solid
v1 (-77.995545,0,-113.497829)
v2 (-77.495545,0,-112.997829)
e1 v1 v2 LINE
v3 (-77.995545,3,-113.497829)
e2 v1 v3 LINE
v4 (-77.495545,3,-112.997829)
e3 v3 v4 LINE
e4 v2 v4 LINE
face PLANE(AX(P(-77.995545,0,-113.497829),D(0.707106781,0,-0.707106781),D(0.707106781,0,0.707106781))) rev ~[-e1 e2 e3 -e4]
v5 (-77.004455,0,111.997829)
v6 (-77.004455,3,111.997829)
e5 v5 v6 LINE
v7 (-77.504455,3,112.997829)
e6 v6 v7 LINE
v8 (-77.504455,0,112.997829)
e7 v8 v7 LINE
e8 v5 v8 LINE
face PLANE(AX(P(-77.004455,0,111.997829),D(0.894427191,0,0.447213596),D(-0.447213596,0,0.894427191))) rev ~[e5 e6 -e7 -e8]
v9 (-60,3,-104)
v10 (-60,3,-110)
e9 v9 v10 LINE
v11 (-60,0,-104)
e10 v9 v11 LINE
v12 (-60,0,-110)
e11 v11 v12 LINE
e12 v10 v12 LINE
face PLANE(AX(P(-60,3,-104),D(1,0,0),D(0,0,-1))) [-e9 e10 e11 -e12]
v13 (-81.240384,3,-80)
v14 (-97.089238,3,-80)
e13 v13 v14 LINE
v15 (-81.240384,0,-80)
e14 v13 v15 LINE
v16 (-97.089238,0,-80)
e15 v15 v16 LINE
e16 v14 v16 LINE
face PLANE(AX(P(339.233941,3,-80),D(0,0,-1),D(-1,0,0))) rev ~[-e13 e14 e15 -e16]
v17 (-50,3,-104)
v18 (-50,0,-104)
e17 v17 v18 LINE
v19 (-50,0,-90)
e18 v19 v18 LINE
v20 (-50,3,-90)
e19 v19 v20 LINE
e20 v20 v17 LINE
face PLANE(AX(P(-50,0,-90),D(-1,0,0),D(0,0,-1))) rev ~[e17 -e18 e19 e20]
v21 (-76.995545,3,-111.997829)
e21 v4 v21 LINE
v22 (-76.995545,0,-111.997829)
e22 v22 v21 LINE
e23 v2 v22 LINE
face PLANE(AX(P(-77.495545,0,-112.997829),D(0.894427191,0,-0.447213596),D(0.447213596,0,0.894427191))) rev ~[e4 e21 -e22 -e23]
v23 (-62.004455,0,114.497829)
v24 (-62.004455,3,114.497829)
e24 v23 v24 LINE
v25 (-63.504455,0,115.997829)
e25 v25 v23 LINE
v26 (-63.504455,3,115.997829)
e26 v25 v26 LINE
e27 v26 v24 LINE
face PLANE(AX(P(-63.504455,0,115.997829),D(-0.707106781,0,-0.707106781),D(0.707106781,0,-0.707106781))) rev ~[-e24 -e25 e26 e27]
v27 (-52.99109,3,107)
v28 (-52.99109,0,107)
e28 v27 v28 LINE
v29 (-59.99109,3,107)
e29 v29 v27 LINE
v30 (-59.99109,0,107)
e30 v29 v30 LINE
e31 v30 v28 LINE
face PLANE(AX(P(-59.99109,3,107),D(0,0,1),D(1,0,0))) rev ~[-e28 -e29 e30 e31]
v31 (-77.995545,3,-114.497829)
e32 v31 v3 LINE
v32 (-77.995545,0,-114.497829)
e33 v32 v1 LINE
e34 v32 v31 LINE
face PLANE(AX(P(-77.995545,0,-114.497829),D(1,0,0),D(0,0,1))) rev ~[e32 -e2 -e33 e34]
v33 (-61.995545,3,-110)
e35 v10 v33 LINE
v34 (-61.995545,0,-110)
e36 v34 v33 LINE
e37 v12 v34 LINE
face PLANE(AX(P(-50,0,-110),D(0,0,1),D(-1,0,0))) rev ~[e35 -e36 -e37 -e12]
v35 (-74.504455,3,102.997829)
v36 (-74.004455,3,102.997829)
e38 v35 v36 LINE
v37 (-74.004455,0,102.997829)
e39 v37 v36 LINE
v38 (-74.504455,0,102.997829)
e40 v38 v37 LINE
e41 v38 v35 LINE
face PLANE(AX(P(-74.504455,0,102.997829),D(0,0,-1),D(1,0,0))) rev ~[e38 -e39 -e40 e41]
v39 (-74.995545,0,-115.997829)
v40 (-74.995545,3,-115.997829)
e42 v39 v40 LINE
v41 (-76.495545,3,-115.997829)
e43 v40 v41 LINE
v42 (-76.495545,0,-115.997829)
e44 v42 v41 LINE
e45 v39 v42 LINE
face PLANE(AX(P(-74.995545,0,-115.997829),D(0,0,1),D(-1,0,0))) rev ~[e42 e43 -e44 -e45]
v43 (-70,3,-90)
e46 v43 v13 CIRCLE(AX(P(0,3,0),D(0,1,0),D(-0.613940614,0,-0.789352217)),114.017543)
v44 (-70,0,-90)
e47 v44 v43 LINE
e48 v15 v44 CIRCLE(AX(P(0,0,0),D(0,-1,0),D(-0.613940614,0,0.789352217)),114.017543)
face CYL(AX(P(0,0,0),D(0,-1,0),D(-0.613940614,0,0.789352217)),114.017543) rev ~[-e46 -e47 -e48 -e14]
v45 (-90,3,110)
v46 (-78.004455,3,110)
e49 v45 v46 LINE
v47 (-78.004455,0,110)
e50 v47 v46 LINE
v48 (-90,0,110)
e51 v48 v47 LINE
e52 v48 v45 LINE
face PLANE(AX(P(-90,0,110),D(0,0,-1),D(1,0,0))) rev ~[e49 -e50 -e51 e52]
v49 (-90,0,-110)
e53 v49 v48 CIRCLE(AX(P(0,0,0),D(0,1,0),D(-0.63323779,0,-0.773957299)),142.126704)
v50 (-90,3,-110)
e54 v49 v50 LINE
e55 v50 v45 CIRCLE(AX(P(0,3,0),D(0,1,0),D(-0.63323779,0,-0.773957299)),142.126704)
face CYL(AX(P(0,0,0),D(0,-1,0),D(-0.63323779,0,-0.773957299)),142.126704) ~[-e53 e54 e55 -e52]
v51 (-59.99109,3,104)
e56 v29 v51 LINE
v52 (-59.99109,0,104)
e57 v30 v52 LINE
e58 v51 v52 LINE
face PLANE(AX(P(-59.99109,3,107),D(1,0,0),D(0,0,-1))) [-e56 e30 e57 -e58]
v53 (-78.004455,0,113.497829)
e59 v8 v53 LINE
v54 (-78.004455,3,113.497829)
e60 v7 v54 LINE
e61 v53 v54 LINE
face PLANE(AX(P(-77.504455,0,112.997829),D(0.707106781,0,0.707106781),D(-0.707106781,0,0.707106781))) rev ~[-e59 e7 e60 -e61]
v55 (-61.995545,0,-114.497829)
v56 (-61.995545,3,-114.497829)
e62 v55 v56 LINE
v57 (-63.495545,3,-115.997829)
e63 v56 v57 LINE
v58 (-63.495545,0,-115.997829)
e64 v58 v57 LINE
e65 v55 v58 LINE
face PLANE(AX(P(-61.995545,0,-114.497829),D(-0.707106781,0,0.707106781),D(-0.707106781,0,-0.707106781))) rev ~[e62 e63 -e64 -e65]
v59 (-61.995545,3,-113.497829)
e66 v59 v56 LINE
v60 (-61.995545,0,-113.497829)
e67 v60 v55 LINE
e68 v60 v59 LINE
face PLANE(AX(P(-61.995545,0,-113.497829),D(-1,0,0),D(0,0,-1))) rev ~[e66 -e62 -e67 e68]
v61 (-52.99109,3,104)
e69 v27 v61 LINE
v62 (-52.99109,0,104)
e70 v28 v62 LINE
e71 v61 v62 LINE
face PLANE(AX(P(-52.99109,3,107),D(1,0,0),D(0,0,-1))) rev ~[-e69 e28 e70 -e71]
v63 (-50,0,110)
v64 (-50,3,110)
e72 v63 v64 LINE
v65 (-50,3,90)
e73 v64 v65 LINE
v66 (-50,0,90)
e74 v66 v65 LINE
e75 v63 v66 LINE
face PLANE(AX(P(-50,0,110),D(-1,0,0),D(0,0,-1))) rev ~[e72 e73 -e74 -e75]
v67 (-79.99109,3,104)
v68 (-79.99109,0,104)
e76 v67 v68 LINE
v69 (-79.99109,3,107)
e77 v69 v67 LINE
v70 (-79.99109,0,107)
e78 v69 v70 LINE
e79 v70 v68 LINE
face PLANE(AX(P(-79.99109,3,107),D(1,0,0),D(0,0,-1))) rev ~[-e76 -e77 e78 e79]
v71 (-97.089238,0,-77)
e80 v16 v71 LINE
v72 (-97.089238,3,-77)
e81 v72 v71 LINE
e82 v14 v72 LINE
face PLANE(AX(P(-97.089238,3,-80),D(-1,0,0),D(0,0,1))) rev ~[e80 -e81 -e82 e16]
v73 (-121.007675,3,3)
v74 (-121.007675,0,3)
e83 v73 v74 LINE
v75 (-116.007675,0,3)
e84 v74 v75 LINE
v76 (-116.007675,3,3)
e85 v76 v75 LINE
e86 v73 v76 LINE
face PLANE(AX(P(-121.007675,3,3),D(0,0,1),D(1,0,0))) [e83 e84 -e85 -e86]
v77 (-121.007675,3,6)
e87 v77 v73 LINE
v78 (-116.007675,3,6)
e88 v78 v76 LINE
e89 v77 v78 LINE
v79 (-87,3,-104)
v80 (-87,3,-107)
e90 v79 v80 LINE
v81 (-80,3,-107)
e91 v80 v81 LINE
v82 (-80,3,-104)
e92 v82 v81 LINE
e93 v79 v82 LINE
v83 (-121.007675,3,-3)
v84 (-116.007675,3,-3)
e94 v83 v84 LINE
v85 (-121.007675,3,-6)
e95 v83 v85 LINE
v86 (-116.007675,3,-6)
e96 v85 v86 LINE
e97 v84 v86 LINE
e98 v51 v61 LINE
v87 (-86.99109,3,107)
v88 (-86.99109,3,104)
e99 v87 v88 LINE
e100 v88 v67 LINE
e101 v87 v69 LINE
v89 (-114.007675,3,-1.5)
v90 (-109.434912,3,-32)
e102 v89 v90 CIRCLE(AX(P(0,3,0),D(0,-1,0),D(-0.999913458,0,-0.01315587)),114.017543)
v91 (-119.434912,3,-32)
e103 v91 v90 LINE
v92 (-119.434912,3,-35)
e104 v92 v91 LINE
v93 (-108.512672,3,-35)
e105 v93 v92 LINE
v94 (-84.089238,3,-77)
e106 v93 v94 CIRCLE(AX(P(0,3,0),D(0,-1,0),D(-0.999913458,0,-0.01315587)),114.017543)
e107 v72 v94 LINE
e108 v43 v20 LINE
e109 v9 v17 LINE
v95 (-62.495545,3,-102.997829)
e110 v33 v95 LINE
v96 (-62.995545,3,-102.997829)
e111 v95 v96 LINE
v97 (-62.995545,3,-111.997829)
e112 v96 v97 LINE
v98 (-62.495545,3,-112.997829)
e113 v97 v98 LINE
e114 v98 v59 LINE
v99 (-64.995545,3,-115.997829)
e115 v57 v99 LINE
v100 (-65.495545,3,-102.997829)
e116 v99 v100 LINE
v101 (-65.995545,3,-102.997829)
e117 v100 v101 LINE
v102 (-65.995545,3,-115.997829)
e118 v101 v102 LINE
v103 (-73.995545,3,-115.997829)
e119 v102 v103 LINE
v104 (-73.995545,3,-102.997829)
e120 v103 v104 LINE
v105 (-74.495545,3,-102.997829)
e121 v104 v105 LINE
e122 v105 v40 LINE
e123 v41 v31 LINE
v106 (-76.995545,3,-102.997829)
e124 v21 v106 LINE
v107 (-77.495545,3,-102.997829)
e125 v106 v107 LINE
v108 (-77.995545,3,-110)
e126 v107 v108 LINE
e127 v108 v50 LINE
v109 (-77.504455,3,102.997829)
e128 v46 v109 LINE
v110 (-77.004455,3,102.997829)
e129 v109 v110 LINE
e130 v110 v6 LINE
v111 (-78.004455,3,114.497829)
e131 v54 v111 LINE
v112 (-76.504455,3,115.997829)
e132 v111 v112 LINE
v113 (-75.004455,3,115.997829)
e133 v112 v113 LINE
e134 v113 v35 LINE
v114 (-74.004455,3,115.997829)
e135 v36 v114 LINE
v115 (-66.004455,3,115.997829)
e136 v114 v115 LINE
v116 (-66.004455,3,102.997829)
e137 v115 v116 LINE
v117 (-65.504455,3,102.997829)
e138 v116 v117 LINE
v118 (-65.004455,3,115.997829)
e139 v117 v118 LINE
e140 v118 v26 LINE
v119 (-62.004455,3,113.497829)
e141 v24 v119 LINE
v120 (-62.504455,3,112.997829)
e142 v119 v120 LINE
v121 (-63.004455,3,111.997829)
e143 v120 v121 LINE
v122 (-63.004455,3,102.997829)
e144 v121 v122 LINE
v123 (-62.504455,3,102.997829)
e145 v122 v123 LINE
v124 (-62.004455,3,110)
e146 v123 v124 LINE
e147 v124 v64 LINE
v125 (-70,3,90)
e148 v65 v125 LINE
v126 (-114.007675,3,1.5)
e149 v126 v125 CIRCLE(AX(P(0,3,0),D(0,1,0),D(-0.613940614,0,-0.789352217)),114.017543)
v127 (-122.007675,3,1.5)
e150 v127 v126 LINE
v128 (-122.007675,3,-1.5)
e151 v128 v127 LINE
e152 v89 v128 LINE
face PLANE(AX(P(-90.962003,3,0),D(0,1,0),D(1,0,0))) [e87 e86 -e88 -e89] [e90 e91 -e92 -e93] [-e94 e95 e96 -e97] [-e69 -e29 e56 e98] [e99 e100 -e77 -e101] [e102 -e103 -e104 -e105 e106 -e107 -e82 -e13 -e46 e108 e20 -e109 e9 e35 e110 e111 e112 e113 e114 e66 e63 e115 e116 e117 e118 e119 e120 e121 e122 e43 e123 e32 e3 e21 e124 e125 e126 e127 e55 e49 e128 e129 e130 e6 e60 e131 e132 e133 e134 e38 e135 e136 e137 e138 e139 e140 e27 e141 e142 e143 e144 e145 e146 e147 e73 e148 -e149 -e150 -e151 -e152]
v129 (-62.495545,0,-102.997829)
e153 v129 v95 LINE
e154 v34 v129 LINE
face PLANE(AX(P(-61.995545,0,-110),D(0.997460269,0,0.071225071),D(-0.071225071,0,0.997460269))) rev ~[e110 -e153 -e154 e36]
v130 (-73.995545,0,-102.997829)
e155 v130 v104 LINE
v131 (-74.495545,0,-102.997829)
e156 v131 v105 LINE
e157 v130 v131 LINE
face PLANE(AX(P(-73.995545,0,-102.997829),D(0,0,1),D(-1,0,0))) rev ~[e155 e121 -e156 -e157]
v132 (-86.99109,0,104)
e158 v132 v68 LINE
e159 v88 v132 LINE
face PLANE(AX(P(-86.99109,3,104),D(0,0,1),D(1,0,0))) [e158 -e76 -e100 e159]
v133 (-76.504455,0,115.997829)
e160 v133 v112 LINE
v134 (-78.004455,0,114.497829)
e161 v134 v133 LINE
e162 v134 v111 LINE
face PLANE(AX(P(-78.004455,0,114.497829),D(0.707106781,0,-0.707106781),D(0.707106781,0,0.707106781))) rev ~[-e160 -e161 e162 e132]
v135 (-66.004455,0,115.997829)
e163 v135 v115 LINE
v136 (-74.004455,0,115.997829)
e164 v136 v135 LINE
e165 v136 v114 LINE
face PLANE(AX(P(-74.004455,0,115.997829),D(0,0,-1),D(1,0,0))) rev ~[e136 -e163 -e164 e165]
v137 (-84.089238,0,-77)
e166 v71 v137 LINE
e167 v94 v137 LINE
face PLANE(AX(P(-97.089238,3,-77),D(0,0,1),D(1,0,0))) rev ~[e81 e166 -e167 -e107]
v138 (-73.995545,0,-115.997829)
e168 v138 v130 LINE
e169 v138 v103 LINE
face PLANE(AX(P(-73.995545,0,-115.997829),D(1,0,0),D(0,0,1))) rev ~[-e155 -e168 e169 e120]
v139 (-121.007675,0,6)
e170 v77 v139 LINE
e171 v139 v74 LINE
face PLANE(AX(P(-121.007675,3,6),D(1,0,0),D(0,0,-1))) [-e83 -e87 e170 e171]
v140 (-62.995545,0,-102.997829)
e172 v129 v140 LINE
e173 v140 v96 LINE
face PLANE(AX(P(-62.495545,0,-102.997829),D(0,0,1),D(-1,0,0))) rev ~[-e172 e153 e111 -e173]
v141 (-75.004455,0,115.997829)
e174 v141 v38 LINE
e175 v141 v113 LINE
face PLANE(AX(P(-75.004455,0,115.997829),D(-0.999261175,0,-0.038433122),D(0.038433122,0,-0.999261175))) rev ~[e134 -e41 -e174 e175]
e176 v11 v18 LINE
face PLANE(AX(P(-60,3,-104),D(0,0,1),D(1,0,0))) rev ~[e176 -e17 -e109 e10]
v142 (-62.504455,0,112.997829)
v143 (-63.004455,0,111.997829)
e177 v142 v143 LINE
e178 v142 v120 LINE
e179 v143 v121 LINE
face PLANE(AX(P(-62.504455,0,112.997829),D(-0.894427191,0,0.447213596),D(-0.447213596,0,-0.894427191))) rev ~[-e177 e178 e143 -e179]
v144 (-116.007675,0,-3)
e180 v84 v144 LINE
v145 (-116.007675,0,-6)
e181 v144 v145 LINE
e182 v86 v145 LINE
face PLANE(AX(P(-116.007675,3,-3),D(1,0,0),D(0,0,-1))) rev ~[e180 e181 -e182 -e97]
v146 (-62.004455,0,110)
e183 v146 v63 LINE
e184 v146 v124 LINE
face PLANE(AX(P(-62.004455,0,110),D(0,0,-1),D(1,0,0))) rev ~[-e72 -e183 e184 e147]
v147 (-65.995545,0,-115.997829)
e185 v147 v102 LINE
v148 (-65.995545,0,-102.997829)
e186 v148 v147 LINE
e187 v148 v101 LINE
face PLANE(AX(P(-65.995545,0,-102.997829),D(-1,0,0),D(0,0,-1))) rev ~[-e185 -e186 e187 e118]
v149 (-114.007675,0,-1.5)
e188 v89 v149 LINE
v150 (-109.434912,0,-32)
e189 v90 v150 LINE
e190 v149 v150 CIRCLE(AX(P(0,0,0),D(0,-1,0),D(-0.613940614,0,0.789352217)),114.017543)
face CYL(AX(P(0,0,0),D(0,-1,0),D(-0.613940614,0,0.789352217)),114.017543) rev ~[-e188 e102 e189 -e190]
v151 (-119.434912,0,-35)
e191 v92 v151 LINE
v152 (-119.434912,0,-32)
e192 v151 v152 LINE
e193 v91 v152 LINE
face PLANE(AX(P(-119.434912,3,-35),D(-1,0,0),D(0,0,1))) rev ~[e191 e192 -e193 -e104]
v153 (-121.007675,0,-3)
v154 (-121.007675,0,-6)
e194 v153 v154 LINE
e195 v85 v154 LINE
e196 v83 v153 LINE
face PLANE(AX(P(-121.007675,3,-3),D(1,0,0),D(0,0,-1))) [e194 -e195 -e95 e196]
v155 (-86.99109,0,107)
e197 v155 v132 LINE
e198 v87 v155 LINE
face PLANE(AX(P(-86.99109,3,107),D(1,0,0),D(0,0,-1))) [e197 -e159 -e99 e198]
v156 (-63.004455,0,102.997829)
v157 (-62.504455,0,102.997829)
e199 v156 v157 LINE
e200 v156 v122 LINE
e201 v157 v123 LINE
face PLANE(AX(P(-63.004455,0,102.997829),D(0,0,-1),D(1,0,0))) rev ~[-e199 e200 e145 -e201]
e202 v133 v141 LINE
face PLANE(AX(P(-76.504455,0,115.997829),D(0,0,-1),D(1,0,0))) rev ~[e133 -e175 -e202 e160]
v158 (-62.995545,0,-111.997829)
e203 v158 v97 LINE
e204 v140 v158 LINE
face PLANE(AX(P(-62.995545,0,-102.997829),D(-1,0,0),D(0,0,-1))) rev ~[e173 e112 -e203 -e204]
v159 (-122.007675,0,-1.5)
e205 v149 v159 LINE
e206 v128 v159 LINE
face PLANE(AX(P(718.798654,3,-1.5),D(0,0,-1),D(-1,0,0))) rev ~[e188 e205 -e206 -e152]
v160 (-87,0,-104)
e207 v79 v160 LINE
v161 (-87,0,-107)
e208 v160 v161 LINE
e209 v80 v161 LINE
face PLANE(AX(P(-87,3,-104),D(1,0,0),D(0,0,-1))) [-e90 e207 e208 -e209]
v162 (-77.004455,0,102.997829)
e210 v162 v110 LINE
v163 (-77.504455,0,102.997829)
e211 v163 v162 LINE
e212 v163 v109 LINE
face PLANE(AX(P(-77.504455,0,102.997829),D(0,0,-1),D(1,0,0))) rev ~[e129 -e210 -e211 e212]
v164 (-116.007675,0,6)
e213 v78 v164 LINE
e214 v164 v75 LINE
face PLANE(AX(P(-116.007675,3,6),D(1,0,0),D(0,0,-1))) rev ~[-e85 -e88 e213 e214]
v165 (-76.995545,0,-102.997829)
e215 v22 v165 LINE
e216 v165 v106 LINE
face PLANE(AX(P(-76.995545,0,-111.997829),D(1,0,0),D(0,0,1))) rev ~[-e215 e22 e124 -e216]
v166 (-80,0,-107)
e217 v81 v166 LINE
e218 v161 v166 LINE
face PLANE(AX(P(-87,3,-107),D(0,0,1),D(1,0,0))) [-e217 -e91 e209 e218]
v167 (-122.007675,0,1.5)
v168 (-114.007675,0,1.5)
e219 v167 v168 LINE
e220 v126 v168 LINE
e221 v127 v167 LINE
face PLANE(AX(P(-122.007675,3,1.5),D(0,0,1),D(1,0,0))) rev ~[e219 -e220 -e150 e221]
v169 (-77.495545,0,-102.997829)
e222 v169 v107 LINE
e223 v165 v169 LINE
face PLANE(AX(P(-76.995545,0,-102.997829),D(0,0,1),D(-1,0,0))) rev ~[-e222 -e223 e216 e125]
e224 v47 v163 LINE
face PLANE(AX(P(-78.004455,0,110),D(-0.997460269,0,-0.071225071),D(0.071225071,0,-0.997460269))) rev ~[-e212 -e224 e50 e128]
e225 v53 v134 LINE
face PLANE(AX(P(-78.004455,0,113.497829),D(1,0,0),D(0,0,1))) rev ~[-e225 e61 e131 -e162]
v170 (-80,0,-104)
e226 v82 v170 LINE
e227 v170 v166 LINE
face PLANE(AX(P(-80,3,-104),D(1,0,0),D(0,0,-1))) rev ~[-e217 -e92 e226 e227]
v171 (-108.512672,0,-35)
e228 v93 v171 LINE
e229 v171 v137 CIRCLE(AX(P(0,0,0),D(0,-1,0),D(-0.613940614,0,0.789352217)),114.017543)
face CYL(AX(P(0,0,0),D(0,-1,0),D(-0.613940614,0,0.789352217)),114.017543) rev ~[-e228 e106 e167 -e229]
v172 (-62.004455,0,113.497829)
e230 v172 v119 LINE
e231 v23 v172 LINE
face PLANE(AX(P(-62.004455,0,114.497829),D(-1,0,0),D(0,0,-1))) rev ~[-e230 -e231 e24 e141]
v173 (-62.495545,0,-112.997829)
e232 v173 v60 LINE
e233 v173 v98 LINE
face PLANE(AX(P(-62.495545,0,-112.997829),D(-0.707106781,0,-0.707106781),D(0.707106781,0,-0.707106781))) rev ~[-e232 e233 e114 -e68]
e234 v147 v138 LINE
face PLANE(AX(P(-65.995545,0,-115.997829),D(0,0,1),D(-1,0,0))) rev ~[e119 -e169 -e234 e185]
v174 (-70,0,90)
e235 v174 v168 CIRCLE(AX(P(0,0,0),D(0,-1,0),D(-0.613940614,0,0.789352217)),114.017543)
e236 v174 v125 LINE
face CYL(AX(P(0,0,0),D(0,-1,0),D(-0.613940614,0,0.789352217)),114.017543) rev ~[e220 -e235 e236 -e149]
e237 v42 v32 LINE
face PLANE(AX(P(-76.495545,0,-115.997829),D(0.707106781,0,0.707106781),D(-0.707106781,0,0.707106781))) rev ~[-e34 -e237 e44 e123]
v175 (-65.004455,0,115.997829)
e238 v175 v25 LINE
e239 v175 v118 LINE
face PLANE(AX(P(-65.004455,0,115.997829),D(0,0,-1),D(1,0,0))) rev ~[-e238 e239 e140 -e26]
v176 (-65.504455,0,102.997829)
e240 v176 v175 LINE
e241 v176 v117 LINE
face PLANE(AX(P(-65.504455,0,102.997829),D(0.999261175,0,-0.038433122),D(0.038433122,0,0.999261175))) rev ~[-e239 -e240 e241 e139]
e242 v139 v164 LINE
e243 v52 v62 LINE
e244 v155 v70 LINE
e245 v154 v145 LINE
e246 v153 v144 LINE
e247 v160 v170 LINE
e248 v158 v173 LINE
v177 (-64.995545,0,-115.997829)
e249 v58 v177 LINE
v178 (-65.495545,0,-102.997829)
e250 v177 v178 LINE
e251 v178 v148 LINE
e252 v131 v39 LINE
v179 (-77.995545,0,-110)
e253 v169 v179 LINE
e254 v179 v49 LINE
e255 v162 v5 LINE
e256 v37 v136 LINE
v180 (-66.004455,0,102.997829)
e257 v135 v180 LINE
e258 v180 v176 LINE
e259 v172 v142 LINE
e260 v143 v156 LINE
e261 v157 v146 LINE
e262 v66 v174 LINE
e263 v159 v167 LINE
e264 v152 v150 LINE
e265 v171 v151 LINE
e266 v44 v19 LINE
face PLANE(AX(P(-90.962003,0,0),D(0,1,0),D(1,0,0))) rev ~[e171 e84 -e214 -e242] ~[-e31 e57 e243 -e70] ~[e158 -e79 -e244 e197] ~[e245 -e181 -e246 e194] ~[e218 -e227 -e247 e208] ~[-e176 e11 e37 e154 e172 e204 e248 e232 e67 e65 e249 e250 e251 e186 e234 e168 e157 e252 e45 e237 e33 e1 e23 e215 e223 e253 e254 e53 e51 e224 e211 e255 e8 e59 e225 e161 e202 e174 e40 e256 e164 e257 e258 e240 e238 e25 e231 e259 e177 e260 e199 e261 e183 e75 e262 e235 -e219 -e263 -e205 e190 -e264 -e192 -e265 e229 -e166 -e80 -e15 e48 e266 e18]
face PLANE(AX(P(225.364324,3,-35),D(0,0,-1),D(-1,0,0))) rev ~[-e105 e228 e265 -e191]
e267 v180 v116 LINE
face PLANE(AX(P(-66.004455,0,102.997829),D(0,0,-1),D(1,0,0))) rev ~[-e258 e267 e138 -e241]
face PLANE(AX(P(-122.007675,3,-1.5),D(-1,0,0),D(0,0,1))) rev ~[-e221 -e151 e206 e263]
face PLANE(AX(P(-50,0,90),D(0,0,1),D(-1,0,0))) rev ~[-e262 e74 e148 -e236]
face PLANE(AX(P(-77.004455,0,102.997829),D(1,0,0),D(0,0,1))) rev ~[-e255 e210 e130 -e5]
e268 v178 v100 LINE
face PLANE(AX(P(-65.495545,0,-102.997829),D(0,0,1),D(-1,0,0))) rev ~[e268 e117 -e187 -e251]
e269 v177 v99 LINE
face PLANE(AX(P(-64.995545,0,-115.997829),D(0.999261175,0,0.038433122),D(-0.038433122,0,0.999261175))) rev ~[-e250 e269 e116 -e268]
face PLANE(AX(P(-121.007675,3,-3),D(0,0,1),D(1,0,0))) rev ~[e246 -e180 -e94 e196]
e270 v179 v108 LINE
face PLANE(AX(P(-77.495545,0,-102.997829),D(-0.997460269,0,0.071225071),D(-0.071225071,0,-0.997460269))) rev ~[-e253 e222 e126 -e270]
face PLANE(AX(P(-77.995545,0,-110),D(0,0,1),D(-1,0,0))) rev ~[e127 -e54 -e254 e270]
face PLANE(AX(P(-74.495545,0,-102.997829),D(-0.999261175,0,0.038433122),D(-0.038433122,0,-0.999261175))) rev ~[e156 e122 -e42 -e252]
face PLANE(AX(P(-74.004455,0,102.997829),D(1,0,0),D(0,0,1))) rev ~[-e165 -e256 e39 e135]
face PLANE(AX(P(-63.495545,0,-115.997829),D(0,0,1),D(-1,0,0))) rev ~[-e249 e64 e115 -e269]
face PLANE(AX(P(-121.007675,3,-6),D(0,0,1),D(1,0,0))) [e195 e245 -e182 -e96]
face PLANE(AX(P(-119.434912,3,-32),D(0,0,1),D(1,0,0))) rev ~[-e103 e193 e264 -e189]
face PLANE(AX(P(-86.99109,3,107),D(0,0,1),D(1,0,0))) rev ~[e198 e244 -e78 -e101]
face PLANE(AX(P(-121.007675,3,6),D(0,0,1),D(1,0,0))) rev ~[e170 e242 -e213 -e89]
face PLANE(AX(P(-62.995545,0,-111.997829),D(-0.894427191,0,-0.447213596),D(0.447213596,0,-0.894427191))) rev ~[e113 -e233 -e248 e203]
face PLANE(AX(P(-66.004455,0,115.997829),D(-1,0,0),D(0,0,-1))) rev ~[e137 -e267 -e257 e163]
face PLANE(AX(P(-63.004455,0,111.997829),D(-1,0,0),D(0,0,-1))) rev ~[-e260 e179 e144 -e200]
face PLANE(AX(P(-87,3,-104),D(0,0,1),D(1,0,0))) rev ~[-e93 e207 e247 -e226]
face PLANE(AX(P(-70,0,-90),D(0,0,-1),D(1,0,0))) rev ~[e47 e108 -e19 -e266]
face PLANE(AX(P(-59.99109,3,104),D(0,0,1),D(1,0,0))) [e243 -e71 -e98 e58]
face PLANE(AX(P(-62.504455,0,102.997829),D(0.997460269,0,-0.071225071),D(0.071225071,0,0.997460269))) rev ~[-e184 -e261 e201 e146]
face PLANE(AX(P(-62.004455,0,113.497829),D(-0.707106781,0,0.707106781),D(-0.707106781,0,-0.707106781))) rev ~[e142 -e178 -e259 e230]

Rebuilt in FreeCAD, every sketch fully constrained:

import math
import FreeCAD as App
import Part
import Sketcher
Q = App.Units.Quantity


def add_polygon(sketch, points):
    """Adds a closed chain of lines whose ends are joined by coincident constraints."""
    first, n = sketch.GeometryCount, len(points)
    for a, b in zip(points, points[1:] + points[:1]):
        sketch.addGeometry(Part.LineSegment(App.Vector(*a, 0), App.Vector(*b, 0)), False)
    for i in range(n):
        sketch.addConstraint(Sketcher.Constraint("Coincident", first + i, 2, first + (i + 1) % n, 1))

doc = App.newDocument("Part")
body = doc.addObject("PartDesign::Body", "Body")

# Sketch on XZ plane
sketch1 = body.newObject("Sketcher::SketchObject", "Sketch")
sketch1.AttachmentSupport = (doc.getObject("XZ_Plane"), [""])
sketch1.MapMode = "FlatFace"
sketch1.addGeometry(Part.LineSegment(App.Vector(-70, -90, 0), App.Vector(-50, -90, 0)), False)
sketch1.addGeometry(Part.LineSegment(App.Vector(-50, -90, 0), App.Vector(-50, -110, 0)), False)
sketch1.addGeometry(Part.LineSegment(App.Vector(-50, -110, 0), App.Vector(-62, -110, 0)), False)
sketch1.addGeometry(Part.LineSegment(App.Vector(-62, -110, 0), App.Vector(-62.5, -103, 0)), False)
sketch1.addGeometry(Part.LineSegment(App.Vector(-62.5, -103, 0), App.Vector(-63, -103, 0)), False)
sketch1.addGeometry(Part.LineSegment(App.Vector(-63, -103, 0), App.Vector(-63, -112, 0)), False)
sketch1.addGeometry(Part.LineSegment(App.Vector(-63, -112, 0), App.Vector(-62.5, -113, 0)), False)
sketch1.addGeometry(Part.LineSegment(App.Vector(-62.5, -113, 0), App.Vector(-62, -113.5, 0)), False)
sketch1.addGeometry(Part.LineSegment(App.Vector(-62, -113.5, 0), App.Vector(-62, -114.5, 0)), False)
sketch1.addGeometry(Part.LineSegment(App.Vector(-62, -114.5, 0), App.Vector(-63.5, -116, 0)), False)
sketch1.addGeometry(Part.LineSegment(App.Vector(-63.5, -116, 0), App.Vector(-65, -116, 0)), False)
sketch1.addGeometry(Part.LineSegment(App.Vector(-65, -116, 0), App.Vector(-65.5, -103, 0)), False)
sketch1.addGeometry(Part.LineSegment(App.Vector(-65.5, -103, 0), App.Vector(-66, -103, 0)), False)
sketch1.addGeometry(Part.LineSegment(App.Vector(-66, -103, 0), App.Vector(-66, -116, 0)), False)
sketch1.addGeometry(Part.LineSegment(App.Vector(-66, -116, 0), App.Vector(-74, -116, 0)), False)
sketch1.addGeometry(Part.LineSegment(App.Vector(-74, -116, 0), App.Vector(-74, -103, 0)), False)
sketch1.addGeometry(Part.LineSegment(App.Vector(-74, -103, 0), App.Vector(-74.5, -103, 0)), False)
sketch1.addGeometry(Part.LineSegment(App.Vector(-74.5, -103, 0), App.Vector(-75, -116, 0)), False)
sketch1.addGeometry(Part.LineSegment(App.Vector(-75, -116, 0), App.Vector(-76.5, -116, 0)), False)
sketch1.addGeometry(Part.LineSegment(App.Vector(-76.5, -116, 0), App.Vector(-78, -114.5, 0)), False)
sketch1.addGeometry(Part.LineSegment(App.Vector(-78, -114.5, 0), App.Vector(-78, -113.5, 0)), False)
sketch1.addGeometry(Part.LineSegment(App.Vector(-78, -113.5, 0), App.Vector(-77.5, -113, 0)), False)
sketch1.addGeometry(Part.LineSegment(App.Vector(-77.5, -113, 0), App.Vector(-77, -112, 0)), False)
sketch1.addGeometry(Part.LineSegment(App.Vector(-77, -112, 0), App.Vector(-77, -103, 0)), False)
sketch1.addGeometry(Part.LineSegment(App.Vector(-77, -103, 0), App.Vector(-77.5, -103, 0)), False)
sketch1.addGeometry(Part.LineSegment(App.Vector(-77.5, -103, 0), App.Vector(-78, -110, 0)), False)
sketch1.addGeometry(Part.LineSegment(App.Vector(-78, -110, 0), App.Vector(-90, -110, 0)), False)
sketch1.addGeometry(Part.ArcOfCircle(Part.Circle(App.Vector(0, 0, 0), App.Vector(0, 0, 1), 142.1), math.radians(129), math.radians(231)), False)
sketch1.addGeometry(Part.LineSegment(App.Vector(-90, 110, 0), App.Vector(-78, 110, 0)), False)
sketch1.addGeometry(Part.LineSegment(App.Vector(-78, 110, 0), App.Vector(-77.5, 103, 0)), False)
sketch1.addGeometry(Part.LineSegment(App.Vector(-77.5, 103, 0), App.Vector(-77, 103, 0)), False)
sketch1.addGeometry(Part.LineSegment(App.Vector(-77, 103, 0), App.Vector(-77, 112, 0)), False)
sketch1.addGeometry(Part.LineSegment(App.Vector(-77, 112, 0), App.Vector(-77.5, 113, 0)), False)
sketch1.addGeometry(Part.LineSegment(App.Vector(-77.5, 113, 0), App.Vector(-78, 113.5, 0)), False)
sketch1.addGeometry(Part.LineSegment(App.Vector(-78, 113.5, 0), App.Vector(-78, 114.5, 0)), False)
sketch1.addGeometry(Part.LineSegment(App.Vector(-78, 114.5, 0), App.Vector(-76.5, 116, 0)), False)
sketch1.addGeometry(Part.LineSegment(App.Vector(-76.5, 116, 0), App.Vector(-75, 116, 0)), False)
sketch1.addGeometry(Part.LineSegment(App.Vector(-75, 116, 0), App.Vector(-74.5, 103, 0)), False)
sketch1.addGeometry(Part.LineSegment(App.Vector(-74.5, 103, 0), App.Vector(-74, 103, 0)), False)
sketch1.addGeometry(Part.LineSegment(App.Vector(-74, 103, 0), App.Vector(-74, 116, 0)), False)
sketch1.addGeometry(Part.LineSegment(App.Vector(-74, 116, 0), App.Vector(-66, 116, 0)), False)
sketch1.addGeometry(Part.LineSegment(App.Vector(-66, 116, 0), App.Vector(-66, 103, 0)), False)
sketch1.addGeometry(Part.LineSegment(App.Vector(-66, 103, 0), App.Vector(-65.5, 103, 0)), False)
sketch1.addGeometry(Part.LineSegment(App.Vector(-65.5, 103, 0), App.Vector(-65, 116, 0)), False)
sketch1.addGeometry(Part.LineSegment(App.Vector(-65, 116, 0), App.Vector(-63.5, 116, 0)), False)
sketch1.addGeometry(Part.LineSegment(App.Vector(-63.5, 116, 0), App.Vector(-62, 114.5, 0)), False)
sketch1.addGeometry(Part.LineSegment(App.Vector(-62, 114.5, 0), App.Vector(-62, 113.5, 0)), False)
sketch1.addGeometry(Part.LineSegment(App.Vector(-62, 113.5, 0), App.Vector(-62.5, 113, 0)), False)
sketch1.addGeometry(Part.LineSegment(App.Vector(-62.5, 113, 0), App.Vector(-63, 112, 0)), False)
sketch1.addGeometry(Part.LineSegment(App.Vector(-63, 112, 0), App.Vector(-63, 103, 0)), False)
sketch1.addGeometry(Part.LineSegment(App.Vector(-63, 103, 0), App.Vector(-62.5, 103, 0)), False)
sketch1.addGeometry(Part.LineSegment(App.Vector(-62.5, 103, 0), App.Vector(-62, 110, 0)), False)
sketch1.addGeometry(Part.LineSegment(App.Vector(-62, 110, 0), App.Vector(-50, 110, 0)), False)
sketch1.addGeometry(Part.LineSegment(App.Vector(-50, 110, 0), App.Vector(-50, 90, 0)), False)
sketch1.addGeometry(Part.LineSegment(App.Vector(-50, 90, 0), App.Vector(-70, 90, 0)), False)
sketch1.addGeometry(Part.ArcOfCircle(Part.Circle(App.Vector(0, 0, 0), App.Vector(0, 0, 1), 114), math.radians(128), math.radians(232)), False)
sketch1.addConstraint(Sketcher.Constraint("Coincident", 0, 2, 1, 1))
sketch1.addConstraint(Sketcher.Constraint("Coincident", 1, 2, 2, 1))
sketch1.addConstraint(Sketcher.Constraint("Coincident", 2, 2, 3, 1))
sketch1.addConstraint(Sketcher.Constraint("Coincident", 3, 2, 4, 1))
sketch1.addConstraint(Sketcher.Constraint("Coincident", 4, 2, 5, 1))
sketch1.addConstraint(Sketcher.Constraint("Coincident", 5, 2, 6, 1))
sketch1.addConstraint(Sketcher.Constraint("Coincident", 6, 2, 7, 1))
sketch1.addConstraint(Sketcher.Constraint("Coincident", 7, 2, 8, 1))
sketch1.addConstraint(Sketcher.Constraint("Coincident", 8, 2, 9, 1))
sketch1.addConstraint(Sketcher.Constraint("Coincident", 9, 2, 10, 1))
sketch1.addConstraint(Sketcher.Constraint("Coincident", 10, 2, 11, 1))
sketch1.addConstraint(Sketcher.Constraint("Coincident", 11, 2, 12, 1))
sketch1.addConstraint(Sketcher.Constraint("Coincident", 12, 2, 13, 1))
sketch1.addConstraint(Sketcher.Constraint("Coincident", 13, 2, 14, 1))
sketch1.addConstraint(Sketcher.Constraint("Coincident", 14, 2, 15, 1))
sketch1.addConstraint(Sketcher.Constraint("Coincident", 15, 2, 16, 1))
sketch1.addConstraint(Sketcher.Constraint("Coincident", 16, 2, 17, 1))
sketch1.addConstraint(Sketcher.Constraint("Coincident", 17, 2, 18, 1))
sketch1.addConstraint(Sketcher.Constraint("Coincident", 18, 2, 19, 1))
sketch1.addConstraint(Sketcher.Constraint("Coincident", 19, 2, 20, 1))
sketch1.addConstraint(Sketcher.Constraint("Coincident", 20, 2, 21, 1))
sketch1.addConstraint(Sketcher.Constraint("Coincident", 21, 2, 22, 1))
sketch1.addConstraint(Sketcher.Constraint("Coincident", 22, 2, 23, 1))
sketch1.addConstraint(Sketcher.Constraint("Coincident", 23, 2, 24, 1))
sketch1.addConstraint(Sketcher.Constraint("Coincident", 24, 2, 25, 1))
sketch1.addConstraint(Sketcher.Constraint("Coincident", 25, 2, 26, 1))
sketch1.addConstraint(Sketcher.Constraint("Coincident", 26, 2, 27, 2))
sketch1.addConstraint(Sketcher.Constraint("Coincident", 27, 1, 28, 1))
sketch1.addConstraint(Sketcher.Constraint("Coincident", 28, 2, 29, 1))
sketch1.addConstraint(Sketcher.Constraint("Coincident", 29, 2, 30, 1))
sketch1.addConstraint(Sketcher.Constraint("Coincident", 30, 2, 31, 1))
sketch1.addConstraint(Sketcher.Constraint("Coincident", 31, 2, 32, 1))
sketch1.addConstraint(Sketcher.Constraint("Coincident", 32, 2, 33, 1))
sketch1.addConstraint(Sketcher.Constraint("Coincident", 33, 2, 34, 1))
sketch1.addConstraint(Sketcher.Constraint("Coincident", 34, 2, 35, 1))
sketch1.addConstraint(Sketcher.Constraint("Coincident", 35, 2, 36, 1))
sketch1.addConstraint(Sketcher.Constraint("Coincident", 36, 2, 37, 1))
sketch1.addConstraint(Sketcher.Constraint("Coincident", 37, 2, 38, 1))
sketch1.addConstraint(Sketcher.Constraint("Coincident", 38, 2, 39, 1))
sketch1.addConstraint(Sketcher.Constraint("Coincident", 39, 2, 40, 1))
sketch1.addConstraint(Sketcher.Constraint("Coincident", 40, 2, 41, 1))
sketch1.addConstraint(Sketcher.Constraint("Coincident", 41, 2, 42, 1))
sketch1.addConstraint(Sketcher.Constraint("Coincident", 42, 2, 43, 1))
sketch1.addConstraint(Sketcher.Constraint("Coincident", 43, 2, 44, 1))
sketch1.addConstraint(Sketcher.Constraint("Coincident", 44, 2, 45, 1))
sketch1.addConstraint(Sketcher.Constraint("Coincident", 45, 2, 46, 1))
sketch1.addConstraint(Sketcher.Constraint("Coincident", 46, 2, 47, 1))
sketch1.addConstraint(Sketcher.Constraint("Coincident", 47, 2, 48, 1))
sketch1.addConstraint(Sketcher.Constraint("Coincident", 48, 2, 49, 1))
sketch1.addConstraint(Sketcher.Constraint("Coincident", 49, 2, 50, 1))
sketch1.addConstraint(Sketcher.Constraint("Coincident", 50, 2, 51, 1))
sketch1.addConstraint(Sketcher.Constraint("Coincident", 51, 2, 52, 1))
sketch1.addConstraint(Sketcher.Constraint("Coincident", 52, 2, 53, 1))
sketch1.addConstraint(Sketcher.Constraint("Coincident", 53, 2, 54, 1))
sketch1.addConstraint(Sketcher.Constraint("Coincident", 54, 2, 55, 1))
sketch1.addConstraint(Sketcher.Constraint("Coincident", 55, 2, 0, 1))
sketch1.addConstraint(Sketcher.Constraint("Horizontal", 0))
sketch1.addConstraint(Sketcher.Constraint("Vertical", 1))
sketch1.addConstraint(Sketcher.Constraint("Horizontal", 2))
sketch1.addConstraint(Sketcher.Constraint("Horizontal", 4))
sketch1.addConstraint(Sketcher.Constraint("Vertical", 5))
sketch1.addConstraint(Sketcher.Constraint("Vertical", 8))
sketch1.addConstraint(Sketcher.Constraint("Horizontal", 10))
sketch1.addConstraint(Sketcher.Constraint("Horizontal", 12))
sketch1.addConstraint(Sketcher.Constraint("Vertical", 13))
sketch1.addConstraint(Sketcher.Constraint("Horizontal", 14))
sketch1.addConstraint(Sketcher.Constraint("Vertical", 15))
sketch1.addConstraint(Sketcher.Constraint("Horizontal", 16))
sketch1.addConstraint(Sketcher.Constraint("Horizontal", 18))
sketch1.addConstraint(Sketcher.Constraint("Vertical", 20))
sketch1.addConstraint(Sketcher.Constraint("Vertical", 23))
sketch1.addConstraint(Sketcher.Constraint("Horizontal", 24))
sketch1.addConstraint(Sketcher.Constraint("Horizontal", 26))
sketch1.addConstraint(Sketcher.Constraint("Horizontal", 28))
sketch1.addConstraint(Sketcher.Constraint("Horizontal", 30))
sketch1.addConstraint(Sketcher.Constraint("Vertical", 31))
sketch1.addConstraint(Sketcher.Constraint("Vertical", 34))
sketch1.addConstraint(Sketcher.Constraint("Horizontal", 36))
sketch1.addConstraint(Sketcher.Constraint("Horizontal", 38))
sketch1.addConstraint(Sketcher.Constraint("Vertical", 39))
sketch1.addConstraint(Sketcher.Constraint("Horizontal", 40))
sketch1.addConstraint(Sketcher.Constraint("Vertical", 41))
sketch1.addConstraint(Sketcher.Constraint("Horizontal", 42))
sketch1.addConstraint(Sketcher.Constraint("Horizontal", 44))
sketch1.addConstraint(Sketcher.Constraint("Vertical", 46))
sketch1.addConstraint(Sketcher.Constraint("Vertical", 49))
sketch1.addConstraint(Sketcher.Constraint("Horizontal", 50))
sketch1.addConstraint(Sketcher.Constraint("Horizontal", 52))
sketch1.addConstraint(Sketcher.Constraint("Vertical", 53))
sketch1.addConstraint(Sketcher.Constraint("Horizontal", 54))
sketch1.addConstraint(Sketcher.Constraint("Coincident", 27, 3, -1, 1))
sketch1.addConstraint(Sketcher.Constraint("Coincident", 55, 3, -1, 1))
sketch1.addConstraint(Sketcher.Constraint("Symmetric", 1, 2, 52, 2, -1))
sketch1.addConstraint(Sketcher.Constraint("Perpendicular", 7, 9))
sketch1.addConstraint(Sketcher.Constraint("Perpendicular", 9, 19))
sketch1.addConstraint(Sketcher.Constraint("Perpendicular", 19, 21))
sketch1.addConstraint(Sketcher.Constraint("Parallel", 3, 29))
sketch1.addConstraint(Sketcher.Constraint("Parallel", 6, 32))
sketch1.addConstraint(Sketcher.Constraint("Perpendicular", 21, 33))
sketch1.addConstraint(Sketcher.Constraint("Perpendicular", 33, 35))
sketch1.addConstraint(Sketcher.Constraint("Parallel", 11, 37))
sketch1.addConstraint(Sketcher.Constraint("Parallel", 17, 43))
sketch1.addConstraint(Sketcher.Constraint("Perpendicular", 35, 45))
sketch1.addConstraint(Sketcher.Constraint("Perpendicular", 45, 47))
sketch1.addConstraint(Sketcher.Constraint("Parallel", 22, 48))
sketch1.addConstraint(Sketcher.Constraint("Parallel", 25, 51))
sketch1.addConstraint(Sketcher.Constraint("Horizontal", 4, 2, 11, 2))
sketch1.addConstraint(Sketcher.Constraint("Horizontal", 10, 2, 13, 2))
sketch1.addConstraint(Sketcher.Constraint("Horizontal", 12, 2, 15, 2))
sketch1.addConstraint(Sketcher.Constraint("Horizontal", 14, 2, 17, 2))
sketch1.addConstraint(Sketcher.Constraint("Horizontal", 8, 2, 19, 2))
sketch1.addConstraint(Sketcher.Constraint("Horizontal", 7, 2, 20, 2))
sketch1.addConstraint(Sketcher.Constraint("Horizontal", 6, 2, 21, 2))
sketch1.addConstraint(Sketcher.Constraint("Horizontal", 5, 2, 22, 2))
sketch1.addConstraint(Sketcher.Constraint("Horizontal", 16, 2, 23, 2))
sketch1.addConstraint(Sketcher.Constraint("Horizontal", 2, 2, 25, 2))
sketch1.addConstraint(Sketcher.Constraint("Horizontal", 30, 2, 37, 2))
sketch1.addConstraint(Sketcher.Constraint("Horizontal", 36, 2, 39, 2))
sketch1.addConstraint(Sketcher.Constraint("Horizontal", 38, 2, 41, 2))
sketch1.addConstraint(Sketcher.Constraint("Horizontal", 40, 2, 43, 2))
sketch1.addConstraint(Sketcher.Constraint("Horizontal", 34, 2, 45, 2))
sketch1.addConstraint(Sketcher.Constraint("Horizontal", 33, 2, 46, 2))
sketch1.addConstraint(Sketcher.Constraint("Horizontal", 32, 2, 47, 2))
sketch1.addConstraint(Sketcher.Constraint("Horizontal", 31, 2, 48, 2))
sketch1.addConstraint(Sketcher.Constraint("Horizontal", 42, 2, 49, 2))
sketch1.addConstraint(Sketcher.Constraint("Horizontal", 28, 2, 51, 2))
sketch1.addConstraint(Sketcher.Constraint("Vertical", 3, 2, 6, 2))
sketch1.addConstraint(Sketcher.Constraint("Vertical", 2, 2, 7, 2))
sketch1.addConstraint(Sketcher.Constraint("Vertical", 21, 2, 24, 2))
sketch1.addConstraint(Sketcher.Constraint("Vertical", 20, 2, 25, 2))
sketch1.addConstraint(Sketcher.Constraint("Vertical", 29, 2, 32, 2))
sketch1.addConstraint(Sketcher.Constraint("Vertical", 28, 2, 33, 2))
sketch1.addConstraint(Sketcher.Constraint("Vertical", 47, 2, 50, 2))
sketch1.addConstraint(Sketcher.Constraint("Vertical", 54, 2, 55, 2))
sketch1.addConstraint(Sketcher.Constraint("Equal", 4, 12))
sketch1.addConstraint(Sketcher.Constraint("Equal", 12, 16))
sketch1.addConstraint(Sketcher.Constraint("Equal", 10, 18))
sketch1.addConstraint(Sketcher.Constraint("Equal", 16, 24))
sketch1.addConstraint(Sketcher.Constraint("Equal", 2, 28))
sketch1.addConstraint(Sketcher.Constraint("Equal", 24, 30))
sketch1.addConstraint(Sketcher.Constraint("Equal", 18, 36))
sketch1.addConstraint(Sketcher.Constraint("Equal", 30, 38))
sketch1.addConstraint(Sketcher.Constraint("Equal", 14, 40))
sketch1.addConstraint(Sketcher.Constraint("Equal", 38, 42))
sketch1.addConstraint(Sketcher.Constraint("Equal", 36, 44))
sketch1.addConstraint(Sketcher.Constraint("Equal", 26, 52))
sketch1.addConstraint(Sketcher.Constraint("Equal", 54, 1))
sketch1.addConstraint(Sketcher.Constraint("Equal", 23, 31))
sketch1.addConstraint(Sketcher.Constraint("Equal", 20, 34))
sketch1.addConstraint(Sketcher.Constraint("Equal", 15, 39))
sketch1.addConstraint(Sketcher.Constraint("Equal", 11, 17))
sketch1.addConstraint(Sketcher.Constraint("Equal", 9, 19))
sketch1.addConstraint(Sketcher.Constraint("DistanceX", 0, 1, 0, 2, Q("20 mm")))
sketch1.addConstraint(Sketcher.Constraint("DistanceX", 14, 2, 14, 1, Q("8 mm")))
sketch1.addConstraint(Sketcher.Constraint("DistanceY", 5, 2, 5, 1, Q("9 mm")))
sketch1.addConstraint(Sketcher.Constraint("DistanceY", 8, 2, 8, 1, Q("1 mm")))
sketch1.addConstraint(Sketcher.Constraint("DistanceY", 13, 2, 13, 1, Q("13 mm")))
sketch1.addConstraint(Sketcher.Constraint("DistanceX", 4, 2, 4, 1, Q("0.5 mm")))
sketch1.addConstraint(Sketcher.Constraint("DistanceX", 10, 2, 10, 1, Q("1.5 mm")))
sketch1.addConstraint(Sketcher.Constraint("DistanceX", 0, 2, -1, 1, Q("50 mm")))
sketch1.addConstraint(Sketcher.Constraint("DistanceY", 0, 2, -1, 1, Q("90 mm")))
sketch1.addConstraint(Sketcher.Constraint("DistanceX", 26, 2, -1, 1, Q("90 mm")))
sketch1.addConstraint(Sketcher.Constraint("DistanceX", 4, 2, 2, 2, Q("1 mm")))
sketch1.addConstraint(Sketcher.Constraint("DistanceY", 6, 2, 5, 2, Q("1 mm")))
sketch1.addConstraint(Sketcher.Constraint("DistanceX", 11, 2, 3, 2, Q("3 mm")))
sketch1.addConstraint(Sketcher.Constraint("Distance", 3, Q("7.02 mm")))
sketch1.addConstraint(Sketcher.Constraint("DistanceX", 2, 2, 2, 1, Q("11.995545 mm")))
pad1 = body.newObject("PartDesign::Pad", "Pad")
pad1.Profile = sketch1
pad1.Length = 3
pad1.Reversed = True

# Sketch on XZ plane
sketch2 = body.newObject("Sketcher::SketchObject", "Sketch001")
sketch2.AttachmentSupport = (doc.getObject("XZ_Plane"), [""])
sketch2.MapMode = "FlatFace"
sketch2.AttachmentOffset = App.Placement(App.Vector(0, 0, -3), App.Rotation())
add_polygon(sketch2, [(-60, -110), (-60, -104), (-50, -104), (-50, -110)])  # lines 0-3
add_polygon(sketch2, [(-87, -107), (-87, -104), (-80, -104), (-80, -107)])  # lines 4-7
add_polygon(sketch2, [(-60, 104), (-60, 107), (-53, 107), (-53, 104)])  # lines 8-11
add_polygon(sketch2, [(-87, 104), (-87, 107), (-80, 107), (-80, 104)])  # lines 12-15
sketch2.addConstraint(Sketcher.Constraint("Vertical", 0))
sketch2.addConstraint(Sketcher.Constraint("Horizontal", 1))
sketch2.addConstraint(Sketcher.Constraint("Vertical", 2))
sketch2.addConstraint(Sketcher.Constraint("Horizontal", 3))
sketch2.addConstraint(Sketcher.Constraint("Vertical", 4))
sketch2.addConstraint(Sketcher.Constraint("Horizontal", 5))
sketch2.addConstraint(Sketcher.Constraint("Vertical", 6))
sketch2.addConstraint(Sketcher.Constraint("Horizontal", 7))
sketch2.addConstraint(Sketcher.Constraint("Vertical", 8))
sketch2.addConstraint(Sketcher.Constraint("Horizontal", 9))
sketch2.addConstraint(Sketcher.Constraint("Vertical", 10))
sketch2.addConstraint(Sketcher.Constraint("Horizontal", 11))
sketch2.addConstraint(Sketcher.Constraint("Vertical", 12))
sketch2.addConstraint(Sketcher.Constraint("Horizontal", 13))
sketch2.addConstraint(Sketcher.Constraint("Vertical", 14))
sketch2.addConstraint(Sketcher.Constraint("Horizontal", 15))
sketch2.addConstraint(Sketcher.Constraint("Horizontal", 1, 2, 4, 2))
sketch2.addConstraint(Sketcher.Constraint("Horizontal", 9, 2, 12, 2))
sketch2.addConstraint(Sketcher.Constraint("Horizontal", 11, 2, 14, 2))
sketch2.addConstraint(Sketcher.Constraint("Equal", 7, 9))
sketch2.addConstraint(Sketcher.Constraint("Equal", 11, 13))
sketch2.addConstraint(Sketcher.Constraint("Equal", 6, 8))
sketch2.addConstraint(Sketcher.Constraint("DistanceX", 1, 1, 1, 2, Q("10 mm")))
sketch2.addConstraint(Sketcher.Constraint("DistanceX", 5, 1, 5, 2, Q("7 mm")))
sketch2.addConstraint(Sketcher.Constraint("DistanceY", 0, 1, 0, 2, Q("6 mm")))
sketch2.addConstraint(Sketcher.Constraint("DistanceY", 4, 1, 4, 2, Q("3 mm")))
sketch2.addConstraint(Sketcher.Constraint("DistanceX", 0, 2, -1, 1, Q("60 mm")))
sketch2.addConstraint(Sketcher.Constraint("DistanceY", 0, 2, -1, 1, Q("104 mm")))
sketch2.addConstraint(Sketcher.Constraint("DistanceX", 4, 2, -1, 1, Q("87 mm")))
sketch2.addConstraint(Sketcher.Constraint("DistanceY", -1, 1, 8, 2, Q("107 mm")))
sketch2.addConstraint(Sketcher.Constraint("DistanceX", 12, 2, 8, 2, Q("27 mm")))
sketch2.addConstraint(Sketcher.Constraint("DistanceX", 8, 2, -1, 1, Q("59.99109 mm")))
pocket1 = body.newObject("PartDesign::Pocket", "Pocket")
pocket1.Profile = sketch2
pocket1.Length = 3
pocket1.Reversed = True

# Sketch on XZ plane
sketch3 = body.newObject("Sketcher::SketchObject", "Sketch002")
sketch3.AttachmentSupport = (doc.getObject("XZ_Plane"), [""])
sketch3.MapMode = "FlatFace"
sketch3.AttachmentOffset = App.Placement(App.Vector(0, 0, -3), App.Rotation())
add_polygon(sketch3, [(-122, -1.5), (-122, 1.5), (718.8, 1.5), (718.8, -1.5)])  # lines 0-3
sketch3.addConstraint(Sketcher.Constraint("Vertical", 0))
sketch3.addConstraint(Sketcher.Constraint("Horizontal", 1))
sketch3.addConstraint(Sketcher.Constraint("Vertical", 2))
sketch3.addConstraint(Sketcher.Constraint("Horizontal", 3))
sketch3.addConstraint(Sketcher.Constraint("DistanceY", 0, 1, 0, 2, Q("3 mm")))
sketch3.addConstraint(Sketcher.Constraint("DistanceY", -1, 1, 0, 2, Q("1.5 mm")))
sketch3.addConstraint(Sketcher.Constraint("DistanceX", 1, 1, 1, 2, Q("840.806329 mm")))
sketch3.addConstraint(Sketcher.Constraint("DistanceX", 0, 2, -1, 1, Q("122.007675 mm")))
pocket2 = body.newObject("PartDesign::Pocket", "Pocket001")
pocket2.Profile = sketch3
pocket2.Type = "ThroughAll"
pocket2.Midplane = True

# Sketch on XZ plane
sketch4 = body.newObject("Sketcher::SketchObject", "Sketch003")
sketch4.AttachmentSupport = (doc.getObject("XZ_Plane"), [""])
sketch4.MapMode = "FlatFace"
sketch4.AttachmentOffset = App.Placement(App.Vector(0, 0, -3), App.Rotation())
add_polygon(sketch4, [(-121, -6), (-121, -3), (-116, -3), (-116, -6)])  # lines 0-3
add_polygon(sketch4, [(-121, 3), (-121, 6), (-116, 6), (-116, 3)])  # lines 4-7
sketch4.addConstraint(Sketcher.Constraint("Vertical", 0))
sketch4.addConstraint(Sketcher.Constraint("Horizontal", 1))
sketch4.addConstraint(Sketcher.Constraint("Vertical", 2))
sketch4.addConstraint(Sketcher.Constraint("Horizontal", 3))
sketch4.addConstraint(Sketcher.Constraint("Vertical", 4))
sketch4.addConstraint(Sketcher.Constraint("Horizontal", 5))
sketch4.addConstraint(Sketcher.Constraint("Vertical", 6))
sketch4.addConstraint(Sketcher.Constraint("Horizontal", 7))
sketch4.addConstraint(Sketcher.Constraint("Symmetric", 3, 2, 4, 2, -1))
sketch4.addConstraint(Sketcher.Constraint("Symmetric", 1, 2, 6, 2, -1))
sketch4.addConstraint(Sketcher.Constraint("DistanceX", 1, 1, 1, 2, Q("5 mm")))
sketch4.addConstraint(Sketcher.Constraint("DistanceY", 0, 1, 0, 2, Q("3 mm")))
sketch4.addConstraint(Sketcher.Constraint("DistanceY", 0, 2, -1, 1, Q("3 mm")))
sketch4.addConstraint(Sketcher.Constraint("DistanceX", 0, 2, -1, 1, Q("121.007675 mm")))
pocket3 = body.newObject("PartDesign::Pocket", "Pocket002")
pocket3.Profile = sketch4
pocket3.Length = 10
pocket3.Reversed = True

# Sketch on XZ plane
sketch5 = body.newObject("Sketcher::SketchObject", "Sketch004")
sketch5.AttachmentSupport = (doc.getObject("XZ_Plane"), [""])
sketch5.MapMode = "FlatFace"
sketch5.AttachmentOffset = App.Placement(App.Vector(0, 0, -3), App.Rotation())
add_polygon(sketch5, [(339.2, -80), (-97.1, -80), (-97.1, -77), (336.4, -77), (946.2, 502.1), (949, 499.1)])  # lines 0-5
sketch5.addConstraint(Sketcher.Constraint("Horizontal", 0))
sketch5.addConstraint(Sketcher.Constraint("Vertical", 1))
sketch5.addConstraint(Sketcher.Constraint("Horizontal", 2))
sketch5.addConstraint(Sketcher.Constraint("Perpendicular", 3, 4))
sketch5.addConstraint(Sketcher.Constraint("Perpendicular", 4, 5))
sketch5.addConstraint(Sketcher.Constraint("Equal", 3, 5))
sketch5.addConstraint(Sketcher.Constraint("DistanceY", 1, 1, 1, 2, Q("3 mm")))
sketch5.addConstraint(Sketcher.Constraint("DistanceY", 0, 2, -1, 1, Q("80 mm")))
sketch5.addConstraint(Sketcher.Constraint("DistanceX", 0, 2, 0, 1, Q("436.323179 mm")))
sketch5.addConstraint(Sketcher.Constraint("DistanceX", 1, 2, 3, 2, Q("1043.2779 mm")))
sketch5.addConstraint(Sketcher.Constraint("Distance", 3, Q("840.94865 mm")))
sketch5.addConstraint(Sketcher.Constraint("DistanceX", 0, 2, -1, 1, Q("97.089238 mm")))
pocket4 = body.newObject("PartDesign::Pocket", "Pocket003")
pocket4.Profile = sketch5
pocket4.Type = "ThroughAll"
pocket4.Midplane = True

# Sketch on XZ plane
sketch6 = body.newObject("Sketcher::SketchObject", "Sketch005")
sketch6.AttachmentSupport = (doc.getObject("XZ_Plane"), [""])
sketch6.MapMode = "FlatFace"
sketch6.AttachmentOffset = App.Placement(App.Vector(0, 0, -3), App.Rotation())
add_polygon(sketch6, [(225.4, -35), (-119.4, -35), (-119.4, -32), (224.4, -32), (862.7, 164.2), (863.6, 161.2)])  # lines 0-5
sketch6.addConstraint(Sketcher.Constraint("Horizontal", 0))
sketch6.addConstraint(Sketcher.Constraint("Vertical", 1))
sketch6.addConstraint(Sketcher.Constraint("Horizontal", 2))
sketch6.addConstraint(Sketcher.Constraint("Perpendicular", 3, 4))
sketch6.addConstraint(Sketcher.Constraint("Perpendicular", 4, 5))
sketch6.addConstraint(Sketcher.Constraint("Equal", 3, 5))
sketch6.addConstraint(Sketcher.Constraint("DistanceY", 1, 1, 1, 2, Q("3 mm")))
sketch6.addConstraint(Sketcher.Constraint("DistanceY", 0, 2, -1, 1, Q("35 mm")))
sketch6.addConstraint(Sketcher.Constraint("Distance", 3, Q("667.753992 mm")))
sketch6.addConstraint(Sketcher.Constraint("DistanceX", 0, 2, 0, 1, Q("344.799236 mm")))
sketch6.addConstraint(Sketcher.Constraint("DistanceY", -1, 1, 3, 2, Q("164.214348 mm")))
sketch6.addConstraint(Sketcher.Constraint("DistanceX", 0, 2, -1, 1, Q("119.434912 mm")))
pocket5 = body.newObject("PartDesign::Pocket", "Pocket004")
pocket5.Profile = sketch6
pocket5.Type = "ThroughAll"
pocket5.Midplane = True

doc.recompute()
